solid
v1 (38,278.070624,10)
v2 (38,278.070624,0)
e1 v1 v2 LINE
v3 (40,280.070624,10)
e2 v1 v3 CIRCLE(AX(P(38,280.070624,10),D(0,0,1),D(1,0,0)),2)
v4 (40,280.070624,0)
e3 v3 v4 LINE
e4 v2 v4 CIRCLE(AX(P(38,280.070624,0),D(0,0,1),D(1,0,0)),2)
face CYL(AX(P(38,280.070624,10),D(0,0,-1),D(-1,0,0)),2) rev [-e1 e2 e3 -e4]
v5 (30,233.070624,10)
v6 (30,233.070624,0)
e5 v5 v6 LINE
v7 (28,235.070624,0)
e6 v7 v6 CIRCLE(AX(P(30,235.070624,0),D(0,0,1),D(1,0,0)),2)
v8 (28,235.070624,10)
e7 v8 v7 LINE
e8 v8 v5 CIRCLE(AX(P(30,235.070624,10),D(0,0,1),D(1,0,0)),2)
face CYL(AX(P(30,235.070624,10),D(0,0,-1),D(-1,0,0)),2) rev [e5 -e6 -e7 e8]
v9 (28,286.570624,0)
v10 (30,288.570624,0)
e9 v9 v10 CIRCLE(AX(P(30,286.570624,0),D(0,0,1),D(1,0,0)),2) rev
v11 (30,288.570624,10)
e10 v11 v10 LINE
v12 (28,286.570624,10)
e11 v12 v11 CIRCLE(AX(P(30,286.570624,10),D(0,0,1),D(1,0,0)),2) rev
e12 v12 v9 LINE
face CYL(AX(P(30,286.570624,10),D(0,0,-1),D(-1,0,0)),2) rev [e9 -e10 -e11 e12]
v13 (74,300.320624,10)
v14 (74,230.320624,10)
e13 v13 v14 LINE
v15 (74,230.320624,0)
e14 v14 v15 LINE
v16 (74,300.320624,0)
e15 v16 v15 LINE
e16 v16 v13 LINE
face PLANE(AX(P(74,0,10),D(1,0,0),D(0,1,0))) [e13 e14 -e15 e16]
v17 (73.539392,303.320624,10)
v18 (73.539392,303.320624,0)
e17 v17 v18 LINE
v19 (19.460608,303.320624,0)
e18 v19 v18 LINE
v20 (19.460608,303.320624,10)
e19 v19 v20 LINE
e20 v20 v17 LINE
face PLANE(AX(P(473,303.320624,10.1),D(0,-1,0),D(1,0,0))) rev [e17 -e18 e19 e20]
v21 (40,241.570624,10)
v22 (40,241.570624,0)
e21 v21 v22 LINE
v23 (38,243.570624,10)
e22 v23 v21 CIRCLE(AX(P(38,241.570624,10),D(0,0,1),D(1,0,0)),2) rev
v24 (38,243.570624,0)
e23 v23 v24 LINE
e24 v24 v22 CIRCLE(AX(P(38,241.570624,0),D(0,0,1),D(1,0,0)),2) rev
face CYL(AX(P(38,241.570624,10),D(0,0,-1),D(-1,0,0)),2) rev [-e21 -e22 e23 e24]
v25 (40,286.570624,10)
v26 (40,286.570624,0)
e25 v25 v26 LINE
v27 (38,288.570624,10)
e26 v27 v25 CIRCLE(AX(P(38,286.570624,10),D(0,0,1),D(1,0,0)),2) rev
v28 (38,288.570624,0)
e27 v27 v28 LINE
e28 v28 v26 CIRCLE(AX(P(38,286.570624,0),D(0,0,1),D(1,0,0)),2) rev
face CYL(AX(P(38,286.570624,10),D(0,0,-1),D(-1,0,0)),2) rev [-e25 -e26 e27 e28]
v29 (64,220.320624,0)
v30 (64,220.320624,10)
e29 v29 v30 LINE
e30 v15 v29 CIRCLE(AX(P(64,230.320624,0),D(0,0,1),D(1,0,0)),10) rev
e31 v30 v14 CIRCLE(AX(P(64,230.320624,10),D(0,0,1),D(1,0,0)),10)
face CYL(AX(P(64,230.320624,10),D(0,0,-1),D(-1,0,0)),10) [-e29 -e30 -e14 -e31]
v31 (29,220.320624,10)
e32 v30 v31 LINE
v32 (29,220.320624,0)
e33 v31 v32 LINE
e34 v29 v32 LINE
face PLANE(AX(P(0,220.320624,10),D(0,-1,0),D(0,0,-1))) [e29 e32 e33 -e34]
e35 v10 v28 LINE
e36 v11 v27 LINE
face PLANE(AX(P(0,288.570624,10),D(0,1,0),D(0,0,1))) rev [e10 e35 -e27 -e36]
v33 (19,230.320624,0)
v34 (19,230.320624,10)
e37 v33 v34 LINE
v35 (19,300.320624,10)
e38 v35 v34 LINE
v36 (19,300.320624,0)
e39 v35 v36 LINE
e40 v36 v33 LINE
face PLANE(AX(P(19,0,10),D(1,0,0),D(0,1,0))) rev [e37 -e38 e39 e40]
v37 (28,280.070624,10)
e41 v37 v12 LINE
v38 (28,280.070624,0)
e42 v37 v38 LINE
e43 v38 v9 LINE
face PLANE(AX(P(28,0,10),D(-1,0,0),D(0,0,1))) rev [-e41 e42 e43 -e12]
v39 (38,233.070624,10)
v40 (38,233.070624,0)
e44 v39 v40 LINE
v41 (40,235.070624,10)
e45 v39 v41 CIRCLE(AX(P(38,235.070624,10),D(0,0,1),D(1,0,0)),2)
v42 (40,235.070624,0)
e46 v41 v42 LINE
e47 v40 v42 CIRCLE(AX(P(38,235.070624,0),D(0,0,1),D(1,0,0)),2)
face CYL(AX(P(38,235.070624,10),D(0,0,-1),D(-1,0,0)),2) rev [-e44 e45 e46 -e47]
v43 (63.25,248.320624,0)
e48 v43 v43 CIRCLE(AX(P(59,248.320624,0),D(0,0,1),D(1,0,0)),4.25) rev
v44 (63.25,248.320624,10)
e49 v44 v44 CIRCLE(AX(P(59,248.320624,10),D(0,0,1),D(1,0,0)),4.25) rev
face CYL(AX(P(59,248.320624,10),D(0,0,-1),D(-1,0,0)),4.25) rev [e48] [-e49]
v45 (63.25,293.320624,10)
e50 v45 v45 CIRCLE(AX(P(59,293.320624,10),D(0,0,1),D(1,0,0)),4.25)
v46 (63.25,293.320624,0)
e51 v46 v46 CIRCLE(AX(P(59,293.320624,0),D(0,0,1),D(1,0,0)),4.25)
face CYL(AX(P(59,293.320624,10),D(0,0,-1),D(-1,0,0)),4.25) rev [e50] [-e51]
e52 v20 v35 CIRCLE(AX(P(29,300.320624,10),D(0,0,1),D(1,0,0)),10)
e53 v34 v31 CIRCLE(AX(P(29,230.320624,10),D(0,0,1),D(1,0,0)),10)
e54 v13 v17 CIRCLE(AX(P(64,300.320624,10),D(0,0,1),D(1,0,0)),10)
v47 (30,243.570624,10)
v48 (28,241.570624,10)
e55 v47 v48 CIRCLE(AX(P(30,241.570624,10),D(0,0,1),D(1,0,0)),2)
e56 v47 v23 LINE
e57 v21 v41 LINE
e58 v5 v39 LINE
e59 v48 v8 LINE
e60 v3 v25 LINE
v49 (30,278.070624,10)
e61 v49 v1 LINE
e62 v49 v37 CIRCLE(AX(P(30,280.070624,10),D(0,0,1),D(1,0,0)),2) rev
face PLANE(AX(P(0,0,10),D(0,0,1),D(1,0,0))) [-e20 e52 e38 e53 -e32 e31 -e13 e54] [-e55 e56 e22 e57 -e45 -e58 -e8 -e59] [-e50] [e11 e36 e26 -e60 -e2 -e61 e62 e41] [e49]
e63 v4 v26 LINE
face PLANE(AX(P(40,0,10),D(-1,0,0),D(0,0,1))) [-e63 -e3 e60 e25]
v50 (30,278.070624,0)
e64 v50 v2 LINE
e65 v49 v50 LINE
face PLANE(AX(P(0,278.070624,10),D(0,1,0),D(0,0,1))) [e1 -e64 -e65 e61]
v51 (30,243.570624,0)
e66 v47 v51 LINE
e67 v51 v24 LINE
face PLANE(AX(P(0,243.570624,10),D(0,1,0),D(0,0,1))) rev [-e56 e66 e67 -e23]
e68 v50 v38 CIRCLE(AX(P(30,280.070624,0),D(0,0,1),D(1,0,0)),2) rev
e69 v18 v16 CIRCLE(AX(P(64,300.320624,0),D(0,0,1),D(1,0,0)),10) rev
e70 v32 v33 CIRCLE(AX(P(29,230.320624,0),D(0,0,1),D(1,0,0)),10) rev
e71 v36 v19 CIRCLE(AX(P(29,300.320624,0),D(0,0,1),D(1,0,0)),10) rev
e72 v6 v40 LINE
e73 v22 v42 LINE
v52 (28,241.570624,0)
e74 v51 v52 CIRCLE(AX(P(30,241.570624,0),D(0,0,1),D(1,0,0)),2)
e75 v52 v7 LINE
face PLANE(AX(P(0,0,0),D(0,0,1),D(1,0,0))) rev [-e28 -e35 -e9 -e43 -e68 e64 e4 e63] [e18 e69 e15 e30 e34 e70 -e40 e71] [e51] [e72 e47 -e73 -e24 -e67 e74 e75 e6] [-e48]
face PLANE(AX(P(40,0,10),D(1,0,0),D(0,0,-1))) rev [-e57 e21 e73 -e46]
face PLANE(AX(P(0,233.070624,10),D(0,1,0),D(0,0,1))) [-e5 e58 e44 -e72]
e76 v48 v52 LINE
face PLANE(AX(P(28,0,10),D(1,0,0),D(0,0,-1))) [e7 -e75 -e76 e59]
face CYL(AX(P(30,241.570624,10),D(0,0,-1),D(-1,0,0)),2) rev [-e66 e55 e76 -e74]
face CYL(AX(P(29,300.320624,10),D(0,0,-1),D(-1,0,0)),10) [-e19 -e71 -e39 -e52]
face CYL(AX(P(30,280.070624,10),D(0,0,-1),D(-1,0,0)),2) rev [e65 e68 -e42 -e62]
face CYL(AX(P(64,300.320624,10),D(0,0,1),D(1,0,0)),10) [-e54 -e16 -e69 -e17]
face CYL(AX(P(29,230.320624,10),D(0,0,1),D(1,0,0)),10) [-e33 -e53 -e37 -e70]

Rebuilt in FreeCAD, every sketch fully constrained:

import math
import FreeCAD as App
import Part
import Sketcher

V = App.Vector
Q = App.Units.Quantity


def edges_at(feature, points):
    """Names of the edges that pass closest to the given points."""
    edges = feature.Shape.Edges
    near = lambda p: min(range(len(edges)), key=lambda i: edges[i].distToShape(Part.Vertex(*p))[0])
    return sorted({f"Edge{near(p) + 1}" for p in points})

doc = App.newDocument("Part")
body = doc.addObject("PartDesign::Body", "Body")

# Sketch on XY plane
sketch1 = doc.addObject("Sketcher::SketchObject", "Sketch")
body.addObject(sketch1)
sketch1.AttachmentSupport = (doc.XY_Plane, [""])
sketch1.MapMode = "FlatFace"
sketch1.addGeometry(Part.LineSegment(V(19, 310.320624, 0), V(19, 220.320624, 0)), False)
sketch1.addGeometry(Part.LineSegment(V(19, 220.320624, 0), V(74, 220.320624, 0)), False)
sketch1.addGeometry(Part.LineSegment(V(74, 220.320624, 0), V(74, 310.320624, 0)), False)
sketch1.addGeometry(Part.LineSegment(V(74, 310.320624, 0), V(19, 310.320624, 0)), False)
sketch1.addGeometry(Part.LineSegment(V(38, 233.070624, 0), V(30, 233.070624, 0)), False)
sketch1.addGeometry(Part.ArcOfCircle(Part.Circle(V(30, 235.070624, 0), V(0, 0, 1), 2), math.radians(180), math.radians(270)), False)
sketch1.addGeometry(Part.LineSegment(V(28, 235.070624, 0), V(28, 241.570624, 0)), False)
sketch1.addGeometry(Part.ArcOfCircle(Part.Circle(V(30, 241.570624, 0), V(0, 0, 1), 2), math.radians(90), math.radians(180)), False)
sketch1.addGeometry(Part.LineSegment(V(30, 243.570624, 0), V(38, 243.570624, 0)), False)
sketch1.addGeometry(Part.ArcOfCircle(Part.Circle(V(38, 241.570624, 0), V(0, 0, 1), 2), math.radians(0), math.radians(90)), False)
sketch1.addGeometry(Part.LineSegment(V(40, 241.570624, 0), V(40, 235.070624, 0)), False)
sketch1.addGeometry(Part.ArcOfCircle(Part.Circle(V(38, 235.070624, 0), V(0, 0, 1), 2), math.radians(-90), math.radians(0)), False)
sketch1.addGeometry(Part.Circle(V(59, 248.320624, 0), V(0, 0, 1), 4.25), False)
sketch1.addGeometry(Part.LineSegment(V(38, 278.070624, 0), V(30, 278.070624, 0)), False)
sketch1.addGeometry(Part.ArcOfCircle(Part.Circle(V(30, 280.070624, 0), V(0, 0, 1), 2), math.radians(180), math.radians(270)), False)
sketch1.addGeometry(Part.LineSegment(V(28, 280.070624, 0), V(28, 286.570624, 0)), False)
sketch1.addGeometry(Part.ArcOfCircle(Part.Circle(V(30, 286.570624, 0), V(0, 0, 1), 2), math.radians(90), math.radians(180)), False)
sketch1.addGeometry(Part.LineSegment(V(30, 288.570624, 0), V(38, 288.570624, 0)), False)
sketch1.addGeometry(Part.ArcOfCircle(Part.Circle(V(38, 286.570624, 0), V(0, 0, 1), 2), math.radians(0), math.radians(90)), False)
sketch1.addGeometry(Part.LineSegment(V(40, 286.570624, 0), V(40, 280.070624, 0)), False)
sketch1.addGeometry(Part.ArcOfCircle(Part.Circle(V(38, 280.070624, 0), V(0, 0, 1), 2), math.radians(-90), math.radians(0)), False)
sketch1.addGeometry(Part.Circle(V(59, 293.320624, 0), V(0, 0, 1), 4.25), False)
sketch1.addConstraint(Sketcher.Constraint("Coincident", 0, 2, 1, 1))
sketch1.addConstraint(Sketcher.Constraint("Coincident", 1, 2, 2, 1))
sketch1.addConstraint(Sketcher.Constraint("Coincident", 2, 2, 3, 1))
sketch1.addConstraint(Sketcher.Constraint("Coincident", 3, 2, 0, 1))
sketch1.addConstraint(Sketcher.Constraint("Tangent", 4, 2, 5, 2))
sketch1.addConstraint(Sketcher.Constraint("Tangent", 5, 1, 6, 1))
sketch1.addConstraint(Sketcher.Constraint("Tangent", 6, 2, 7, 2))
sketch1.addConstraint(Sketcher.Constraint("Tangent", 7, 1, 8, 1))
sketch1.addConstraint(Sketcher.Constraint("Tangent", 8, 2, 9, 2))
sketch1.addConstraint(Sketcher.Constraint("Tangent", 9, 1, 10, 1))
sketch1.addConstraint(Sketcher.Constraint("Tangent", 10, 2, 11, 2))
sketch1.addConstraint(Sketcher.Constraint("Tangent", 11, 1, 4, 1))
sketch1.addConstraint(Sketcher.Constraint("Tangent", 13, 2, 14, 2))
sketch1.addConstraint(Sketcher.Constraint("Tangent", 14, 1, 15, 1))
sketch1.addConstraint(Sketcher.Constraint("Tangent", 15, 2, 16, 2))
sketch1.addConstraint(Sketcher.Constraint("Tangent", 16, 1, 17, 1))
sketch1.addConstraint(Sketcher.Constraint("Tangent", 17, 2, 18, 2))
sketch1.addConstraint(Sketcher.Constraint("Tangent", 18, 1, 19, 1))
sketch1.addConstraint(Sketcher.Constraint("Tangent", 19, 2, 20, 2))
sketch1.addConstraint(Sketcher.Constraint("Tangent", 20, 1, 13, 1))
sketch1.addConstraint(Sketcher.Constraint("Vertical", 0))
sketch1.addConstraint(Sketcher.Constraint("Horizontal", 1))
sketch1.addConstraint(Sketcher.Constraint("Vertical", 2))
sketch1.addConstraint(Sketcher.Constraint("Horizontal", 3))
sketch1.addConstraint(Sketcher.Constraint("Horizontal", 4))
sketch1.addConstraint(Sketcher.Constraint("Vertical", 6))
sketch1.addConstraint(Sketcher.Constraint("Horizontal", 8))
sketch1.addConstraint(Sketcher.Constraint("Vertical", 10))
sketch1.addConstraint(Sketcher.Constraint("Horizontal", 13))
sketch1.addConstraint(Sketcher.Constraint("Vertical", 15))
sketch1.addConstraint(Sketcher.Constraint("Horizontal", 17))
sketch1.addConstraint(Sketcher.Constraint("Vertical", 19))
sketch1.addConstraint(Sketcher.Constraint("Equal", 5, 7))
sketch1.addConstraint(Sketcher.Constraint("Equal", 7, 9))
sketch1.addConstraint(Sketcher.Constraint("Equal", 9, 11))
sketch1.addConstraint(Sketcher.Constraint("Equal", 11, 14))
sketch1.addConstraint(Sketcher.Constraint("Equal", 14, 16))
sketch1.addConstraint(Sketcher.Constraint("Equal", 16, 18))
sketch1.addConstraint(Sketcher.Constraint("Equal", 18, 20))
sketch1.addConstraint(Sketcher.Constraint("Equal", 12, 21))
sketch1.addConstraint(Sketcher.Constraint("Vertical", 7, 3, 14, 3))
sketch1.addConstraint(Sketcher.Constraint("Vertical", 11, 3, 18, 3))
sketch1.addConstraint(Sketcher.Constraint("Vertical", 12, 3, 21, 3))
sketch1.addConstraint(Sketcher.Constraint("Equal", 10, 15))
sketch1.addConstraint(Sketcher.Constraint("Radius", 5, Q("2 mm")))
sketch1.addConstraint(Sketcher.Constraint("Diameter", 12, Q("8.5 mm")))
sketch1.addConstraint(Sketcher.Constraint("DistanceX", 1, 1, 1, 2, Q("55 mm")))
sketch1.addConstraint(Sketcher.Constraint("DistanceX", 4, 2, 4, 1, Q("8 mm")))
sketch1.addConstraint(Sketcher.Constraint("DistanceY", 0, 2, 0, 1, Q("90 mm")))
sketch1.addConstraint(Sketcher.Constraint("DistanceY", 6, 1, 6, 2, Q("6.5 mm")))
sketch1.addConstraint(Sketcher.Constraint("DistanceX", -1, 1, 5, 3, Q("30 mm")))
sketch1.addConstraint(Sketcher.Constraint("DistanceX", -1, 1, 12, 3, Q("59 mm")))
sketch1.addConstraint(Sketcher.Constraint("DistanceX", -1, 1, 0, 2, Q("19 mm")))
sketch1.addConstraint(Sketcher.Constraint("DistanceY", 5, 3, 14, 3, Q("45 mm")))
sketch1.addConstraint(Sketcher.Constraint("DistanceY", 12, 3, 21, 3, Q("45 mm")))
sketch1.addConstraint(Sketcher.Constraint("DistanceY", 0, 2, 12, 3, Q("28 mm")))
sketch1.addConstraint(Sketcher.Constraint("DistanceY", 9, 3, 12, 3, Q("6.75 mm")))
sketch1.addConstraint(Sketcher.Constraint("DistanceY", -1, 1, 5, 3, Q("235.070624 mm")))
pad1 = doc.addObject("PartDesign::Pad", "Pad")
body.addObject(pad1)
pad1.Profile = sketch1
pad1.Length = 10
doc.recompute()

fillet = doc.addObject("PartDesign::Fillet", "Fillet")
body.addObject(fillet)
fillet.Base = (pad1, edges_at(pad1, [
    (74, 220.321, 5),
    (19, 220.321, 5),
    (19, 310.321, 5),
    (74, 310.321, 5),
]))
fillet.Radius = 10

# Sketch on YZ plane
sketch2 = doc.addObject("Sketcher::SketchObject", "Sketch001")
body.addObject(sketch2)
sketch2.AttachmentSupport = (doc.YZ_Plane, [""])
sketch2.MapMode = "FlatFace"
sketch2.AttachmentOffset = App.Placement(V(0, 0, -127), App.Rotation())
sketch2.addGeometry(Part.LineSegment(V(303.320624, 10.1, 0), V(583.320624, 10.1, 0)), False)
sketch2.addGeometry(Part.LineSegment(V(583.320624, 10.1, 0), V(583.320624, -461.9, 0)), False)
sketch2.addGeometry(Part.LineSegment(V(583.320624, -461.9, 0), V(303.320624, -461.9, 0)), False)
sketch2.addGeometry(Part.LineSegment(V(303.320624, -461.9, 0), V(303.320624, 10.1, 0)), False)
sketch2.addGeometry(Part.LineSegment(V(988.320624, -461.9, 0), V(878.320624, -461.9, 0)), False)
sketch2.addGeometry(Part.ArcOfCircle(Part.Circle(V(878.320624, -451.9, 0), V(0, 0, 1), 10), math.radians(180), math.radians(270)), False)
sketch2.addGeometry(Part.LineSegment(V(868.320624, -451.9, 0), V(868.320624, 0.1, 0)), False)
sketch2.addGeometry(Part.ArcOfCircle(Part.Circle(V(878.320624, 0.1, 0), V(0, 0, 1), 10), math.radians(90), math.radians(180)), False)
sketch2.addGeometry(Part.LineSegment(V(878.320624, 10.1, 0), V(988.320624, 10.1, 0)), False)
sketch2.addGeometry(Part.ArcOfCircle(Part.Circle(V(988.320624, 0.1, 0), V(0, 0, 1), 10), math.radians(0), math.radians(90)), False)
sketch2.addGeometry(Part.LineSegment(V(998.320624, 0.1, 0), V(998.320624, -451.9, 0)), False)
sketch2.addGeometry(Part.ArcOfCircle(Part.Circle(V(988.320624, -451.9, 0), V(0, 0, 1), 10), math.radians(-90), math.radians(0)), False)
sketch2.addConstraint(Sketcher.Constraint("Coincident", 0, 2, 1, 1))
sketch2.addConstraint(Sketcher.Constraint("Coincident", 1, 2, 2, 1))
sketch2.addConstraint(Sketcher.Constraint("Coincident", 2, 2, 3, 1))
sketch2.addConstraint(Sketcher.Constraint("Coincident", 3, 2, 0, 1))
sketch2.addConstraint(Sketcher.Constraint("Tangent", 4, 2, 5, 2))
sketch2.addConstraint(Sketcher.Constraint("Tangent", 5, 1, 6, 1))
sketch2.addConstraint(Sketcher.Constraint("Tangent", 6, 2, 7, 2))
sketch2.addConstraint(Sketcher.Constraint("Tangent", 7, 1, 8, 1))
sketch2.addConstraint(Sketcher.Constraint("Tangent", 8, 2, 9, 2))
sketch2.addConstraint(Sketcher.Constraint("Tangent", 9, 1, 10, 1))
sketch2.addConstraint(Sketcher.Constraint("Tangent", 10, 2, 11, 2))
sketch2.addConstraint(Sketcher.Constraint("Tangent", 11, 1, 4, 1))
sketch2.addConstraint(Sketcher.Constraint("Horizontal", 0))
sketch2.addConstraint(Sketcher.Constraint("Vertical", 1))
sketch2.addConstraint(Sketcher.Constraint("Horizontal", 2))
sketch2.addConstraint(Sketcher.Constraint("Vertical", 3))
sketch2.addConstraint(Sketcher.Constraint("Horizontal", 4))
sketch2.addConstraint(Sketcher.Constraint("Vertical", 6))
sketch2.addConstraint(Sketcher.Constraint("Horizontal", 8))
sketch2.addConstraint(Sketcher.Constraint("Vertical", 10))
sketch2.addConstraint(Sketcher.Constraint("Equal", 5, 7))
sketch2.addConstraint(Sketcher.Constraint("Equal", 7, 9))
sketch2.addConstraint(Sketcher.Constraint("Equal", 9, 11))
sketch2.addConstraint(Sketcher.Constraint("Horizontal", 2, 2, 4, 2))
sketch2.addConstraint(Sketcher.Constraint("Horizontal", 3, 2, 7, 1))
sketch2.addConstraint(Sketcher.Constraint("Radius", 5, Q("10 mm")))
sketch2.addConstraint(Sketcher.Constraint("DistanceX", 0, 1, 0, 2, Q("280 mm")))
sketch2.addConstraint(Sketcher.Constraint("DistanceX", 4, 2, 4, 1, Q("110 mm")))
sketch2.addConstraint(Sketcher.Constraint("DistanceY", 1, 2, 1, 1, Q("472 mm")))
sketch2.addConstraint(Sketcher.Constraint("DistanceX", 0, 2, 7, 3, Q("295 mm")))
sketch2.addConstraint(Sketcher.Constraint("DistanceY", 5, 3, -1, 1, Q("451.9 mm")))
sketch2.addConstraint(Sketcher.Constraint("DistanceX", -1, 1, 5, 3, Q("878.320624 mm")))
pocket1 = doc.addObject("PartDesign::Pocket", "Pocket")
body.addObject(pocket1)
pocket1.Profile = sketch2
pocket1.Length = 600
pocket1.Reversed = True

doc.recompute()
